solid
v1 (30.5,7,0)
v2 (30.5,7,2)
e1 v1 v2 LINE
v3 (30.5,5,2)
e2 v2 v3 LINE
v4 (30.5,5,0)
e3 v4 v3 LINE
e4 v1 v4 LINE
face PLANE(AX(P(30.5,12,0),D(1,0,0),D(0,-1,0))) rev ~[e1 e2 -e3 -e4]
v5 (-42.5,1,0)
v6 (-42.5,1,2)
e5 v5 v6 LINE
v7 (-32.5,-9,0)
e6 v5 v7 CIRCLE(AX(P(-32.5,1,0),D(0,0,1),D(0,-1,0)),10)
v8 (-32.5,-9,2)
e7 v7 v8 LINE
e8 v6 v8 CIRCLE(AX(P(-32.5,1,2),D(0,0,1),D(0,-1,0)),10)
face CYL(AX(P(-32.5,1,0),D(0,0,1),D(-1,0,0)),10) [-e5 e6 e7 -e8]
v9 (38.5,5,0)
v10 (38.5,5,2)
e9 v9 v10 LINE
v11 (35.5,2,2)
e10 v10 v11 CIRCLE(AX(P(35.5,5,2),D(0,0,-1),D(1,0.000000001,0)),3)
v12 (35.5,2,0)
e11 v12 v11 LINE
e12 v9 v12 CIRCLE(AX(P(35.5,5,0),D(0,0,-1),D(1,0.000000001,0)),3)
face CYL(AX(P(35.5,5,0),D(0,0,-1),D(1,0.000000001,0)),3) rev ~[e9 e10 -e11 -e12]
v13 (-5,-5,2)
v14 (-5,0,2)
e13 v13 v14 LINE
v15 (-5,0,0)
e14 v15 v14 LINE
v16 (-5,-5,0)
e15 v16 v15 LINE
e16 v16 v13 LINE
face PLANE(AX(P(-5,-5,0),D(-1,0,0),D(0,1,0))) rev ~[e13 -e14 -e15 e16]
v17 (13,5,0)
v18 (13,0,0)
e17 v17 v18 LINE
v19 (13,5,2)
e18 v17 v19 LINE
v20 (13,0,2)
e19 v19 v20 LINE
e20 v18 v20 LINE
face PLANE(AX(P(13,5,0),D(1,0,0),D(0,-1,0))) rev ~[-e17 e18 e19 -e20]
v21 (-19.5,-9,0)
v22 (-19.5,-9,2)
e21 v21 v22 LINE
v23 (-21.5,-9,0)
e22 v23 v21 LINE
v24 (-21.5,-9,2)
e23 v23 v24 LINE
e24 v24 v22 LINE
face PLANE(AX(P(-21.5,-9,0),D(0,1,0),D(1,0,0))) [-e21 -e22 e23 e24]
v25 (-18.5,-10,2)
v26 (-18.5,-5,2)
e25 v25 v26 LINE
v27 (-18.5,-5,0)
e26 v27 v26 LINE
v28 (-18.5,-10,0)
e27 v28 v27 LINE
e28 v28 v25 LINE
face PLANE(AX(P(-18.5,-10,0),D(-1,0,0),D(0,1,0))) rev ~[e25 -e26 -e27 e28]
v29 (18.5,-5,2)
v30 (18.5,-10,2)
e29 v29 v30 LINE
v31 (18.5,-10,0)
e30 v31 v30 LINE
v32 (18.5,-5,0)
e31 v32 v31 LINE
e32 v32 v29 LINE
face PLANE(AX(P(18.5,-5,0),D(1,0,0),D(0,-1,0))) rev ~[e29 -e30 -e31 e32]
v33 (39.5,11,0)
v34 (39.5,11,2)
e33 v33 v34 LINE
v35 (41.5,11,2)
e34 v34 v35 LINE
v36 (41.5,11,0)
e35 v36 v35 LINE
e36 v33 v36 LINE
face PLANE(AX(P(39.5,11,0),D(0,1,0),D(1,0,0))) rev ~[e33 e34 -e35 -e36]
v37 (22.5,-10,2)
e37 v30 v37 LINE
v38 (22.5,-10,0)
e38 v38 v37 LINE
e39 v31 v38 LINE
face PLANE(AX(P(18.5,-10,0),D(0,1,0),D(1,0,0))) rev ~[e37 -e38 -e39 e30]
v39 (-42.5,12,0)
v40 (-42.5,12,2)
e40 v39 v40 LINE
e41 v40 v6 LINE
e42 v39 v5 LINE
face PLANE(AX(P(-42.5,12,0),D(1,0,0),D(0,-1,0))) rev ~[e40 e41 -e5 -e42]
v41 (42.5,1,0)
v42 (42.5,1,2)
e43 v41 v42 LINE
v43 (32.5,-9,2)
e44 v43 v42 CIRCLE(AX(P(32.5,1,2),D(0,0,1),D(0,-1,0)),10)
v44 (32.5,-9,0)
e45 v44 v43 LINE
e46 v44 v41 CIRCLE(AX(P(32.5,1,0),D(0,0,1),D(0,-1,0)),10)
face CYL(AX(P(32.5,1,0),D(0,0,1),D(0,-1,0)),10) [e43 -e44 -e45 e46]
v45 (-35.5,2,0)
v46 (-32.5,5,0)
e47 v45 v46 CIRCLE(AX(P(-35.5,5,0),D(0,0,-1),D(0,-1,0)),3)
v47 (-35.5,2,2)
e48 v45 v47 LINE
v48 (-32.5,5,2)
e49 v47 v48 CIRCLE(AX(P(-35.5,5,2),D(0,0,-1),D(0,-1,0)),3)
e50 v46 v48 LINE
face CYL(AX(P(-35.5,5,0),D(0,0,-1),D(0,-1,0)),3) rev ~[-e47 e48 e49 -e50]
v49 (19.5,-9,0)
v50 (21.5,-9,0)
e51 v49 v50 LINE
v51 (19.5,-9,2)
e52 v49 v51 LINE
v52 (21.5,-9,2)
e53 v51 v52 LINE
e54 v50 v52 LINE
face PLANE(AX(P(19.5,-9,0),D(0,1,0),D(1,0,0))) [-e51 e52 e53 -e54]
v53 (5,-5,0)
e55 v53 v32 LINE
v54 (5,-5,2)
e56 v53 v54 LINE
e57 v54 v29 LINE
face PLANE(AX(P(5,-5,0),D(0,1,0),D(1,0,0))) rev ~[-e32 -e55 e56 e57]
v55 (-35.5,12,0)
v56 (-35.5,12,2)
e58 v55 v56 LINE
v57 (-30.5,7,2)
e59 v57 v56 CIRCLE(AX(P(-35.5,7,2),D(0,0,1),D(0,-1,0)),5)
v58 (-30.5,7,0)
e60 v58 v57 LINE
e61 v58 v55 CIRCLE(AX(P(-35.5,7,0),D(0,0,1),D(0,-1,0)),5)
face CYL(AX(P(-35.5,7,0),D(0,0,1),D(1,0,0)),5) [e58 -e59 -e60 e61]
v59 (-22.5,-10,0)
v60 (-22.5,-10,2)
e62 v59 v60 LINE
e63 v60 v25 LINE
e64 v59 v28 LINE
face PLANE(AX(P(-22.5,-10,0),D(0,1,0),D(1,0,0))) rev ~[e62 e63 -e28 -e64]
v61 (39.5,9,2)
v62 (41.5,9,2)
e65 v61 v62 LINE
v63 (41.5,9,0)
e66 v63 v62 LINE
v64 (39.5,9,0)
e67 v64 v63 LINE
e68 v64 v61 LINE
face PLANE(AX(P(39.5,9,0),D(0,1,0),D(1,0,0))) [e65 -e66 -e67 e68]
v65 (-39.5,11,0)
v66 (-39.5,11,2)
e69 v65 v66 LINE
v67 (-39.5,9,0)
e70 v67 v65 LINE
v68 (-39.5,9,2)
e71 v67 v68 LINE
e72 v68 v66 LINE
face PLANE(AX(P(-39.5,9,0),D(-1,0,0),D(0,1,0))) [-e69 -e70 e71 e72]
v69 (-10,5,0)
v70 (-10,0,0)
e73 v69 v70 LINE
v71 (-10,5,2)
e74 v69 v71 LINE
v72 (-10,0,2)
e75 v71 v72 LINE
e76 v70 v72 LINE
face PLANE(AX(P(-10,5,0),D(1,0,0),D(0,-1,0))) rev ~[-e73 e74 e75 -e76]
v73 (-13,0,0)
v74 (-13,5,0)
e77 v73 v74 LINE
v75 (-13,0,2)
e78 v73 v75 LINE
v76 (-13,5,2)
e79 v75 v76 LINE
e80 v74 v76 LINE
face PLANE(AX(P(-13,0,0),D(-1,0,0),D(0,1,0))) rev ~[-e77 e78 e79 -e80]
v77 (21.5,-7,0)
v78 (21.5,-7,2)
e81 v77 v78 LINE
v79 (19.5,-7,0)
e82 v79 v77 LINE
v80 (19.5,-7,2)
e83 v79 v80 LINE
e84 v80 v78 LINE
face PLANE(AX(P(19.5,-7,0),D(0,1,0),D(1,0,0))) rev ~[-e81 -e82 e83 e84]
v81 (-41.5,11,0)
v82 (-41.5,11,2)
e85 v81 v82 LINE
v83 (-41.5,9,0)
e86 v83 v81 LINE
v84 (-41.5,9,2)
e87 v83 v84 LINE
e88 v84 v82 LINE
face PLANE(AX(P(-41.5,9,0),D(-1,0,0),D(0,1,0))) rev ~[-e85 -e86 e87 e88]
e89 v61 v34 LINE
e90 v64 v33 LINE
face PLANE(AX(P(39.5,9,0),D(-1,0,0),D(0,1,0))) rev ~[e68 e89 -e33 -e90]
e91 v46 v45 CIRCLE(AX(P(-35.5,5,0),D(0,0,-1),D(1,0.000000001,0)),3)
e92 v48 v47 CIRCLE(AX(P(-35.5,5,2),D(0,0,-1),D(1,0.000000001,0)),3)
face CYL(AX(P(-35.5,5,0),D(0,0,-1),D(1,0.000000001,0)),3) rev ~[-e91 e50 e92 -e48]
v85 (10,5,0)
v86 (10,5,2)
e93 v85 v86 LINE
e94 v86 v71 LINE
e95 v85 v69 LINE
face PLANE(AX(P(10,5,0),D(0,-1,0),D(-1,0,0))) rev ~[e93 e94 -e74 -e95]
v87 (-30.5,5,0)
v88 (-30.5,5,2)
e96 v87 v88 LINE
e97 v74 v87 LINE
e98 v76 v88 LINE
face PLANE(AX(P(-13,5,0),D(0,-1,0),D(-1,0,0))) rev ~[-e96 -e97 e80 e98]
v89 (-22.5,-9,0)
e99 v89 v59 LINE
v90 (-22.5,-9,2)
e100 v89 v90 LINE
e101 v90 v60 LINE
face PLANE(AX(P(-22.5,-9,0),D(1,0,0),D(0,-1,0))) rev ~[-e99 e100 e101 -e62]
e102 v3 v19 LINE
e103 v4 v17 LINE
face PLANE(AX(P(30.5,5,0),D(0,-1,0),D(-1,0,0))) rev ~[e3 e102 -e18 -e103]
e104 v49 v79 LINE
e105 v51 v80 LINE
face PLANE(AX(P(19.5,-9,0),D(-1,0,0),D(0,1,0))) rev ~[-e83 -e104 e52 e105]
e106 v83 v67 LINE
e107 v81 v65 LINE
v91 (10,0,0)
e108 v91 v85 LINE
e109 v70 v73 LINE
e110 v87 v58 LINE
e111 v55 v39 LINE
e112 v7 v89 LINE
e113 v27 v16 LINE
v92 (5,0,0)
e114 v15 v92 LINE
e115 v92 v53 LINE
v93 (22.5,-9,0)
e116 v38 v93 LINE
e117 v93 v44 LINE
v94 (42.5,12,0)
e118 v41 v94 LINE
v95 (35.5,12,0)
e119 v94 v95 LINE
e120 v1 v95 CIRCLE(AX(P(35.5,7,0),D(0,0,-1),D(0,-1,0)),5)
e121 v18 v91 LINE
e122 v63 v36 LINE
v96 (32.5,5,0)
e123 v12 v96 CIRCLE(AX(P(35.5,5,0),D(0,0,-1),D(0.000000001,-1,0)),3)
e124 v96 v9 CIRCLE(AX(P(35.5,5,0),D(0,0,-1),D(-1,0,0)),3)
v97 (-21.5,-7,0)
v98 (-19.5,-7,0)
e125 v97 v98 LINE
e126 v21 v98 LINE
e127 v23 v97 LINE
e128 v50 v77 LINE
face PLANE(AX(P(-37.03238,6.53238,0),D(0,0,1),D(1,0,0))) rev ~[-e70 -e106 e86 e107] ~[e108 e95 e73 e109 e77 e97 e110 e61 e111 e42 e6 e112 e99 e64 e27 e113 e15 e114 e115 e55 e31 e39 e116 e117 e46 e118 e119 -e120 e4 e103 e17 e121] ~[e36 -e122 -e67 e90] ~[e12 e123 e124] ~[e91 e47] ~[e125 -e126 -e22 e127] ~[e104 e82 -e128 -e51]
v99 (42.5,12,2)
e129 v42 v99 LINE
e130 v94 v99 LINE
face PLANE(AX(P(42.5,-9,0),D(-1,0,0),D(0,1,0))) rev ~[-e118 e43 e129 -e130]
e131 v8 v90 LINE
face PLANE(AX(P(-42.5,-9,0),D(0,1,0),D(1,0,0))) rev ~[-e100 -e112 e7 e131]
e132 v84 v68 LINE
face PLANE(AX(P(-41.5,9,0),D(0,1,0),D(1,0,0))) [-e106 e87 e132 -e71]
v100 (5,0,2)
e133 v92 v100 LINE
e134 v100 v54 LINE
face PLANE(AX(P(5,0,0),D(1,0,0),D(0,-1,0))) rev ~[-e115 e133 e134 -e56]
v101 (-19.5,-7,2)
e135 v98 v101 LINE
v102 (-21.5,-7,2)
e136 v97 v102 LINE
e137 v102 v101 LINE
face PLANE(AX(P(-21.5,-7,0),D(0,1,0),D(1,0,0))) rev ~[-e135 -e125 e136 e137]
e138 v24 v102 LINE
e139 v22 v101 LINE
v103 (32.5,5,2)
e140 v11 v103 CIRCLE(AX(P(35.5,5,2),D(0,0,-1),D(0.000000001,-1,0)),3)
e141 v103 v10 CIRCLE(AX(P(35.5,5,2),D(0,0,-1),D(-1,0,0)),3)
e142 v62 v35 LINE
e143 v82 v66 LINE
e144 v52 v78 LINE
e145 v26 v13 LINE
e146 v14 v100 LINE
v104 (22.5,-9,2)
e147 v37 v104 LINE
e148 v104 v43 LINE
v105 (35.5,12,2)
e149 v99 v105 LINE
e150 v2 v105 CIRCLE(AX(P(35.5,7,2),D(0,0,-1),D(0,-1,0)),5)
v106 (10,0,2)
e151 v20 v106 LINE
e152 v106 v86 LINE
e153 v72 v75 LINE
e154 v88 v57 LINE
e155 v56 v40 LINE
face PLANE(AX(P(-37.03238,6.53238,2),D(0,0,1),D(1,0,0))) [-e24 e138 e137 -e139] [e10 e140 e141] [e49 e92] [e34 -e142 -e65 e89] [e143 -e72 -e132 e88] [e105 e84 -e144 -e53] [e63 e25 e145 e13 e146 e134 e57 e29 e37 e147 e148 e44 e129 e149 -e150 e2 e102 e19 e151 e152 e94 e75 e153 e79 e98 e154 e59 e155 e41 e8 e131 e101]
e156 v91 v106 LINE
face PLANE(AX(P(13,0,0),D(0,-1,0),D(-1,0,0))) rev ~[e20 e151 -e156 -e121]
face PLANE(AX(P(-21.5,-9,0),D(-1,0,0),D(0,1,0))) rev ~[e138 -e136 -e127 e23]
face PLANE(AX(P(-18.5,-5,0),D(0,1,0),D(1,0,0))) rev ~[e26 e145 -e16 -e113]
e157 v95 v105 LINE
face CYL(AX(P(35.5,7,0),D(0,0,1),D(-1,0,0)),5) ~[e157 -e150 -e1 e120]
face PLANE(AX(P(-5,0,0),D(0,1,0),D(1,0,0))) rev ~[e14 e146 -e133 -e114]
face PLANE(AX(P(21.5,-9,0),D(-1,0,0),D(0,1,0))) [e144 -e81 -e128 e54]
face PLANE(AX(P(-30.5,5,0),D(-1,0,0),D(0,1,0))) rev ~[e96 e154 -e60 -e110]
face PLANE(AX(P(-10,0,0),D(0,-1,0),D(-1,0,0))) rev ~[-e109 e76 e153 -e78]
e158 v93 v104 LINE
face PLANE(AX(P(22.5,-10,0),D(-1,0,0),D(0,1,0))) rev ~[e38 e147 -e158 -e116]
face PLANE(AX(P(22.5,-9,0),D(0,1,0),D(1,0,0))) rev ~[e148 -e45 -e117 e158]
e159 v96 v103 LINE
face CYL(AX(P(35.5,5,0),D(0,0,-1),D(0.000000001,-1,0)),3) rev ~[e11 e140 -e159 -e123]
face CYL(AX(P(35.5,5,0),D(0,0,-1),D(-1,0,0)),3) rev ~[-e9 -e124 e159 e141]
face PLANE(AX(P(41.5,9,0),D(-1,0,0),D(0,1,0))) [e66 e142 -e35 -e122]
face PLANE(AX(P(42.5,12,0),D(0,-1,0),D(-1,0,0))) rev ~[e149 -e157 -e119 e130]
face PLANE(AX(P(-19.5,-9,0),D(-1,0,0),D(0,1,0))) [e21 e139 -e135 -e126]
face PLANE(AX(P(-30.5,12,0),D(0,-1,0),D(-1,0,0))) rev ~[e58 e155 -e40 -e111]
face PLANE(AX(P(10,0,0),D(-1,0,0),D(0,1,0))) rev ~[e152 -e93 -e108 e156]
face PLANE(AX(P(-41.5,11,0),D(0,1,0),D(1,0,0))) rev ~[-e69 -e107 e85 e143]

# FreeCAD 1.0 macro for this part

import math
import FreeCAD as App
import Part
import Sketcher

V = App.Vector


def edges_at(feature, points):
    """Names of the edges that pass closest to the given points."""
    edges = feature.Shape.Edges
    near = lambda p: min(range(len(edges)), key=lambda i: edges[i].distToShape(Part.Vertex(*p))[0])
    return sorted({f"Edge{near(p) + 1}" for p in points})

doc = App.newDocument("Part")
body = doc.addObject("PartDesign::Body", "Body")

sketch1 = body.newObject("Sketcher::SketchObject", "Sketch")
sketch1.AttachmentSupport = (doc.getObject("XY_Plane"), [""])
sketch1.MapMode = "FlatFace"
sketch1.addGeometry([
    Part.LineSegment(V(-42.5, 12, 0), V(-42.5, -9, 0)),
    Part.LineSegment(V(-42.5, -9, 0), V(-22.5, -9, 0)),
    Part.LineSegment(V(-22.5, -9, 0), V(-22.5, -10, 0)),
    Part.LineSegment(V(-22.5, -10, 0), V(-18.5, -10, 0)),
    Part.LineSegment(V(-18.5, -10, 0), V(-18.5, -5, 0)),
    Part.LineSegment(V(-18.5, -5, 0), V(-5, -5, 0)),
    Part.LineSegment(V(-5, -5, 0), V(-5, 0, 0)),
    Part.LineSegment(V(-5, 0, 0), V(5, 0, 0)),
    Part.LineSegment(V(5, 0, 0), V(5, -5, 0)),
    Part.LineSegment(V(5, -5, 0), V(18.5, -5, 0)),
    Part.LineSegment(V(18.5, -5, 0), V(18.5, -10, 0)),
    Part.LineSegment(V(18.5, -10, 0), V(22.5, -10, 0)),
    Part.LineSegment(V(22.5, -10, 0), V(22.5, -9, 0)),
    Part.LineSegment(V(22.5, -9, 0), V(42.5, -9, 0)),
    Part.LineSegment(V(42.5, -9, 0), V(42.5, 12, 0)),
    Part.LineSegment(V(42.5, 12, 0), V(30.5, 12, 0)),
    Part.LineSegment(V(30.5, 12, 0), V(30.5, 5, 0)),
    Part.LineSegment(V(30.5, 5, 0), V(13, 5, 0)),
    Part.LineSegment(V(13, 5, 0), V(13, 0, 0)),
    Part.LineSegment(V(13, 0, 0), V(10, 0, 0)),
    Part.LineSegment(V(10, 0, 0), V(10, 5, 0)),
    Part.LineSegment(V(10, 5, 0), V(-10, 5, 0)),
    Part.LineSegment(V(-10, 5, 0), V(-10, 0, 0)),
    Part.LineSegment(V(-10, 0, 0), V(-13, 0, 0)),
    Part.LineSegment(V(-13, 0, 0), V(-13, 5, 0)),
    Part.LineSegment(V(-13, 5, 0), V(-30.5, 5, 0)),
    Part.LineSegment(V(-30.5, 5, 0), V(-30.5, 12, 0)),
    Part.LineSegment(V(-30.5, 12, 0), V(-42.5, 12, 0)),
    Part.ArcOfCircle(Part.Circle(V(-35.5, 5, 0), V(0, 0, 1), 3), math.radians(0), math.radians(270)),
    Part.ArcOfCircle(Part.Circle(V(-35.5, 5, 0), V(0, 0, 1), 3), math.radians(-90), math.radians(0)),
    Part.LineSegment(V(-39.5, 9, 0), V(-41.5, 9, 0)),
    Part.LineSegment(V(-41.5, 9, 0), V(-41.5, 11, 0)),
    Part.LineSegment(V(-41.5, 11, 0), V(-39.5, 11, 0)),
    Part.LineSegment(V(-39.5, 11, 0), V(-39.5, 9, 0)),
    Part.LineSegment(V(-21.5, -9, 0), V(-21.5, -7, 0)),
    Part.LineSegment(V(-21.5, -7, 0), V(-19.5, -7, 0)),
    Part.LineSegment(V(-19.5, -7, 0), V(-19.5, -9, 0)),
    Part.LineSegment(V(-19.5, -9, 0), V(-21.5, -9, 0)),
    Part.ArcOfCircle(Part.Circle(V(35.5, 5, 0), V(0, 0, 1), 3), math.radians(180), math.radians(270)),
    Part.ArcOfCircle(Part.Circle(V(35.5, 5, 0), V(0, 0, 1), 3), math.radians(0), math.radians(180)),
    Part.ArcOfCircle(Part.Circle(V(35.5, 5, 0), V(0, 0, 1), 3), math.radians(-90), math.radians(0)),
    Part.LineSegment(V(39.5, 9, 0), V(39.5, 11, 0)),
    Part.LineSegment(V(39.5, 11, 0), V(41.5, 11, 0)),
    Part.LineSegment(V(41.5, 11, 0), V(41.5, 9, 0)),
    Part.LineSegment(V(41.5, 9, 0), V(39.5, 9, 0)),
    Part.LineSegment(V(21.5, -9, 0), V(19.5, -9, 0)),
    Part.LineSegment(V(19.5, -9, 0), V(19.5, -7, 0)),
    Part.LineSegment(V(19.5, -7, 0), V(21.5, -7, 0)),
    Part.LineSegment(V(21.5, -7, 0), V(21.5, -9, 0)),
], False)
sketch1.addConstraint([
    Sketcher.Constraint("Coincident", 0, 2, 1, 1),
    Sketcher.Constraint("Coincident", 1, 2, 2, 1),
    Sketcher.Constraint("Coincident", 2, 2, 3, 1),
    Sketcher.Constraint("Coincident", 3, 2, 4, 1),
    Sketcher.Constraint("Coincident", 4, 2, 5, 1),
    Sketcher.Constraint("Coincident", 5, 2, 6, 1),
    Sketcher.Constraint("Coincident", 6, 2, 7, 1),
    Sketcher.Constraint("Coincident", 7, 2, 8, 1),
    Sketcher.Constraint("Coincident", 8, 2, 9, 1),
    Sketcher.Constraint("Coincident", 9, 2, 10, 1),
    Sketcher.Constraint("Coincident", 10, 2, 11, 1),
    Sketcher.Constraint("Coincident", 11, 2, 12, 1),
    Sketcher.Constraint("Coincident", 12, 2, 13, 1),
    Sketcher.Constraint("Coincident", 13, 2, 14, 1),
    Sketcher.Constraint("Coincident", 14, 2, 15, 1),
    Sketcher.Constraint("Coincident", 15, 2, 16, 1),
    Sketcher.Constraint("Coincident", 16, 2, 17, 1),
    Sketcher.Constraint("Coincident", 17, 2, 18, 1),
    Sketcher.Constraint("Coincident", 18, 2, 19, 1),
    Sketcher.Constraint("Coincident", 19, 2, 20, 1),
    Sketcher.Constraint("Coincident", 20, 2, 21, 1),
    Sketcher.Constraint("Coincident", 21, 2, 22, 1),
    Sketcher.Constraint("Coincident", 22, 2, 23, 1),
    Sketcher.Constraint("Coincident", 23, 2, 24, 1),
    Sketcher.Constraint("Coincident", 24, 2, 25, 1),
    Sketcher.Constraint("Coincident", 25, 2, 26, 1),
    Sketcher.Constraint("Coincident", 26, 2, 27, 1),
    Sketcher.Constraint("Coincident", 27, 2, 0, 1),
    Sketcher.Constraint("Tangent", 28, 1, 29, 2),
    Sketcher.Constraint("Coincident", 29, 1, 28, 2),
    Sketcher.Constraint("Coincident", 30, 2, 31, 1),
    Sketcher.Constraint("Coincident", 31, 2, 32, 1),
    Sketcher.Constraint("Coincident", 32, 2, 33, 1),
    Sketcher.Constraint("Coincident", 33, 2, 30, 1),
    Sketcher.Constraint("Coincident", 34, 2, 35, 1),
    Sketcher.Constraint("Coincident", 35, 2, 36, 1),
    Sketcher.Constraint("Coincident", 36, 2, 37, 1),
    Sketcher.Constraint("Coincident", 37, 2, 34, 1),
    Sketcher.Constraint("Tangent", 38, 1, 39, 2),
    Sketcher.Constraint("Tangent", 39, 1, 40, 2),
    Sketcher.Constraint("Tangent", 40, 1, 38, 2),
    Sketcher.Constraint("Coincident", 41, 2, 42, 1),
    Sketcher.Constraint("Coincident", 42, 2, 43, 1),
    Sketcher.Constraint("Coincident", 43, 2, 44, 1),
    Sketcher.Constraint("Coincident", 44, 2, 41, 1),
    Sketcher.Constraint("Coincident", 45, 2, 46, 1),
    Sketcher.Constraint("Coincident", 46, 2, 47, 1),
    Sketcher.Constraint("Coincident", 47, 2, 48, 1),
    Sketcher.Constraint("Coincident", 48, 2, 45, 1),
    Sketcher.Constraint("Vertical", 0),
    Sketcher.Constraint("Horizontal", 1),
    Sketcher.Constraint("Vertical", 2),
    Sketcher.Constraint("Horizontal", 3),
    Sketcher.Constraint("Vertical", 4),
    Sketcher.Constraint("Horizontal", 5),
    Sketcher.Constraint("Vertical", 6),
    Sketcher.Constraint("Horizontal", 7),
    Sketcher.Constraint("Vertical", 8),
    Sketcher.Constraint("Horizontal", 9),
    Sketcher.Constraint("Vertical", 10),
    Sketcher.Constraint("Horizontal", 11),
    Sketcher.Constraint("Vertical", 12),
    Sketcher.Constraint("Horizontal", 13),
    Sketcher.Constraint("Vertical", 14),
    Sketcher.Constraint("Horizontal", 15),
    Sketcher.Constraint("Vertical", 16),
    Sketcher.Constraint("Horizontal", 17),
    Sketcher.Constraint("Vertical", 18),
    Sketcher.Constraint("Horizontal", 19),
    Sketcher.Constraint("Vertical", 20),
    Sketcher.Constraint("Horizontal", 21),
    Sketcher.Constraint("Vertical", 22),
    Sketcher.Constraint("Horizontal", 23),
    Sketcher.Constraint("Vertical", 24),
    Sketcher.Constraint("Horizontal", 25),
    Sketcher.Constraint("Vertical", 26),
    Sketcher.Constraint("Horizontal", 27),
    Sketcher.Constraint("Horizontal", 30),
    Sketcher.Constraint("Vertical", 31),
    Sketcher.Constraint("Horizontal", 32),
    Sketcher.Constraint("Vertical", 33),
    Sketcher.Constraint("Vertical", 34),
    Sketcher.Constraint("Horizontal", 35),
    Sketcher.Constraint("Vertical", 36),
    Sketcher.Constraint("Horizontal", 37),
    Sketcher.Constraint("Vertical", 41),
    Sketcher.Constraint("Horizontal", 42),
    Sketcher.Constraint("Vertical", 43),
    Sketcher.Constraint("Horizontal", 44),
    Sketcher.Constraint("Horizontal", 45),
    Sketcher.Constraint("Vertical", 46),
    Sketcher.Constraint("Horizontal", 47),
    Sketcher.Constraint("Vertical", 48),
    Sketcher.Constraint("Equal", 29, 38),
    Sketcher.Constraint("Symmetric", 6, 2, 7, 2, -1, 1),
    Sketcher.Constraint("Symmetric", 19, 2, 22, 2, -1, 1),
    Sketcher.Constraint("Symmetric", 28, 3, 38, 3, -2),
    Sketcher.Constraint("Symmetric", 4, 2, 9, 2, -2),
    Sketcher.Constraint("Symmetric", 2, 2, 11, 2, -2),
    Sketcher.Constraint("Symmetric", 0, 2, 13, 2, -2),
    Sketcher.Constraint("Symmetric", 18, 2, 23, 2, -2),
    Sketcher.Constraint("Symmetric", 16, 2, 25, 2, -2),
    Sketcher.Constraint("Symmetric", 32, 2, 41, 2, -2),
    Sketcher.Constraint("Symmetric", 30, 2, 43, 2, -2),
    Sketcher.Constraint("Symmetric", 36, 2, 45, 2, -2),
    Sketcher.Constraint("Symmetric", 34, 2, 47, 2, -2),
    Sketcher.Constraint("Horizontal", 40, 3, 16, 2),
    Sketcher.Constraint("Horizontal", 17, 2, 20, 2),
    Sketcher.Constraint("Horizontal", 15, 2, 26, 2),
    Sketcher.Constraint("Horizontal", 25, 2, 28, 1),
    Sketcher.Constraint("Horizontal", 13, 2, 36, 2),
    Sketcher.Constraint("Horizontal", 28, 1, 38, 1),
    Sketcher.Constraint("Horizontal", 38, 1, 39, 1),
    Sketcher.Constraint("Vertical", 28, 3, 29, 1),
    Sketcher.Constraint("Vertical", 39, 3, 40, 1),
    Sketcher.Constraint("Equal", 13, 21),
    Sketcher.Constraint("Equal", 32, 35),
    Sketcher.Constraint("Equal", 4, 6),
    Sketcher.Constraint("Equal", 10, 18),
    Sketcher.Constraint("Equal", 47, 31),
    Sketcher.Constraint("Equal", 33, 34),
    Sketcher.Constraint("Radius", 28, 3.0),
    Sketcher.Constraint("DistanceX", 1, 1, 1, 2, 20.0),
    Sketcher.Constraint("DistanceX", 3, 1, 3, 2, 4.0),
    Sketcher.Constraint("DistanceX", 7, 1, 7, 2, 10.0),
    Sketcher.Constraint("DistanceX", 15, 2, 15, 1, 12.0),
    Sketcher.Constraint("DistanceX", 19, 2, 19, 1, 3.0),
    Sketcher.Constraint("DistanceX", 30, 2, 30, 1, 2.0),
    Sketcher.Constraint("DistanceY", 0, 2, 0, 1, 21.0),
    Sketcher.Constraint("DistanceY", 2, 2, 2, 1, 1.0),
    Sketcher.Constraint("DistanceY", 4, 1, 4, 2, 5.0),
    Sketcher.Constraint("DistanceX", 5, 1, 5, 2, 13.5),
    Sketcher.Constraint("DistanceY", -1, 1, 30, 2, 9.0),
    Sketcher.Constraint("DistanceX", 29, 3, 38, 3, 71.0),
    Sketcher.Constraint("DistanceX", 27, 2, 30, 2, 1.0),
    Sketcher.Constraint("DistanceX", 1, 2, 34, 2, 1.0),
])
pad1 = body.newObject("PartDesign::Pad", "Pad")
pad1.Profile = sketch1
pad1.Length = 2
doc.recompute()

fillet = body.newObject("PartDesign::Fillet", "Fillet")
fillet.Base = (pad1, edges_at(pad1, [(-42.5, -9, 1)]))
fillet.Radius = 10
doc.recompute()

fillet2 = body.newObject("PartDesign::Fillet", "Fillet001")
fillet2.Base = (fillet, edges_at(fillet, [(42.5, -9, 1)]))
fillet2.Radius = 10
doc.recompute()

fillet3 = body.newObject("PartDesign::Fillet", "Fillet002")
fillet3.Base = (fillet2, edges_at(fillet2, [(-30.5, 12, 1)]))
fillet3.Radius = 5
doc.recompute()

fillet4 = body.newObject("PartDesign::Fillet", "Fillet003")
fillet4.Base = (fillet3, edges_at(fillet3, [(30.5, 12, 1)]))
fillet4.Radius = 5

doc.recompute()
